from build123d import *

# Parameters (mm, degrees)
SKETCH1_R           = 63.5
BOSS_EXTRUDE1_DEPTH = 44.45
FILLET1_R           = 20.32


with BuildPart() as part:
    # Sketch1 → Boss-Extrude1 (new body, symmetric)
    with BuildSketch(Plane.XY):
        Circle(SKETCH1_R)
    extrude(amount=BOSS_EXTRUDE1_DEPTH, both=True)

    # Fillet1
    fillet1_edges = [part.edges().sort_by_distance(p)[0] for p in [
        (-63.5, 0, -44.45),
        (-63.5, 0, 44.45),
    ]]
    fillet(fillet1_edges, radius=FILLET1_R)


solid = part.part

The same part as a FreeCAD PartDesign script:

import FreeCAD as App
import Part
import Sketcher
Q = App.Units.Quantity


def edges_at(feature, points):
    """Names of the edges that pass closest to the given points."""
    edges = feature.Shape.Edges
    near = lambda p: min(range(len(edges)), key=lambda i: edges[i].distToShape(Part.Vertex(*p))[0])
    return sorted({f"Edge{near(p) + 1}" for p in points})

doc = App.newDocument("Part")
body = doc.addObject("PartDesign::Body", "Body")

# Sketch on XY plane
sketch1 = body.newObject("Sketcher::SketchObject", "Sketch")
sketch1.AttachmentSupport = (doc.getObject("XY_Plane"), [""])
sketch1.MapMode = "FlatFace"
sketch1.addGeometry(Part.Circle(App.Vector(0, 0, 0), App.Vector(0, 0, 1), 64), False)
sketch1.addConstraint([
    Sketcher.Constraint("Coincident", 0, 3, -1, 1),
    Sketcher.Constraint("Diameter", 0, Q("5 in")),
])
pad1 = body.newObject("PartDesign::Pad", "Pad")
pad1.Profile = sketch1
pad1.Length = Q("3.5 in")
pad1.Midplane = True
doc.recompute()

fillet = body.newObject("PartDesign::Fillet", "Fillet")
fillet.Base = (pad1, edges_at(pad1, [(-63.5, 0, -44.45), (-63.5, 0, 44.45)]))
fillet.Radius = Q("0.8 in")

doc.recompute()
